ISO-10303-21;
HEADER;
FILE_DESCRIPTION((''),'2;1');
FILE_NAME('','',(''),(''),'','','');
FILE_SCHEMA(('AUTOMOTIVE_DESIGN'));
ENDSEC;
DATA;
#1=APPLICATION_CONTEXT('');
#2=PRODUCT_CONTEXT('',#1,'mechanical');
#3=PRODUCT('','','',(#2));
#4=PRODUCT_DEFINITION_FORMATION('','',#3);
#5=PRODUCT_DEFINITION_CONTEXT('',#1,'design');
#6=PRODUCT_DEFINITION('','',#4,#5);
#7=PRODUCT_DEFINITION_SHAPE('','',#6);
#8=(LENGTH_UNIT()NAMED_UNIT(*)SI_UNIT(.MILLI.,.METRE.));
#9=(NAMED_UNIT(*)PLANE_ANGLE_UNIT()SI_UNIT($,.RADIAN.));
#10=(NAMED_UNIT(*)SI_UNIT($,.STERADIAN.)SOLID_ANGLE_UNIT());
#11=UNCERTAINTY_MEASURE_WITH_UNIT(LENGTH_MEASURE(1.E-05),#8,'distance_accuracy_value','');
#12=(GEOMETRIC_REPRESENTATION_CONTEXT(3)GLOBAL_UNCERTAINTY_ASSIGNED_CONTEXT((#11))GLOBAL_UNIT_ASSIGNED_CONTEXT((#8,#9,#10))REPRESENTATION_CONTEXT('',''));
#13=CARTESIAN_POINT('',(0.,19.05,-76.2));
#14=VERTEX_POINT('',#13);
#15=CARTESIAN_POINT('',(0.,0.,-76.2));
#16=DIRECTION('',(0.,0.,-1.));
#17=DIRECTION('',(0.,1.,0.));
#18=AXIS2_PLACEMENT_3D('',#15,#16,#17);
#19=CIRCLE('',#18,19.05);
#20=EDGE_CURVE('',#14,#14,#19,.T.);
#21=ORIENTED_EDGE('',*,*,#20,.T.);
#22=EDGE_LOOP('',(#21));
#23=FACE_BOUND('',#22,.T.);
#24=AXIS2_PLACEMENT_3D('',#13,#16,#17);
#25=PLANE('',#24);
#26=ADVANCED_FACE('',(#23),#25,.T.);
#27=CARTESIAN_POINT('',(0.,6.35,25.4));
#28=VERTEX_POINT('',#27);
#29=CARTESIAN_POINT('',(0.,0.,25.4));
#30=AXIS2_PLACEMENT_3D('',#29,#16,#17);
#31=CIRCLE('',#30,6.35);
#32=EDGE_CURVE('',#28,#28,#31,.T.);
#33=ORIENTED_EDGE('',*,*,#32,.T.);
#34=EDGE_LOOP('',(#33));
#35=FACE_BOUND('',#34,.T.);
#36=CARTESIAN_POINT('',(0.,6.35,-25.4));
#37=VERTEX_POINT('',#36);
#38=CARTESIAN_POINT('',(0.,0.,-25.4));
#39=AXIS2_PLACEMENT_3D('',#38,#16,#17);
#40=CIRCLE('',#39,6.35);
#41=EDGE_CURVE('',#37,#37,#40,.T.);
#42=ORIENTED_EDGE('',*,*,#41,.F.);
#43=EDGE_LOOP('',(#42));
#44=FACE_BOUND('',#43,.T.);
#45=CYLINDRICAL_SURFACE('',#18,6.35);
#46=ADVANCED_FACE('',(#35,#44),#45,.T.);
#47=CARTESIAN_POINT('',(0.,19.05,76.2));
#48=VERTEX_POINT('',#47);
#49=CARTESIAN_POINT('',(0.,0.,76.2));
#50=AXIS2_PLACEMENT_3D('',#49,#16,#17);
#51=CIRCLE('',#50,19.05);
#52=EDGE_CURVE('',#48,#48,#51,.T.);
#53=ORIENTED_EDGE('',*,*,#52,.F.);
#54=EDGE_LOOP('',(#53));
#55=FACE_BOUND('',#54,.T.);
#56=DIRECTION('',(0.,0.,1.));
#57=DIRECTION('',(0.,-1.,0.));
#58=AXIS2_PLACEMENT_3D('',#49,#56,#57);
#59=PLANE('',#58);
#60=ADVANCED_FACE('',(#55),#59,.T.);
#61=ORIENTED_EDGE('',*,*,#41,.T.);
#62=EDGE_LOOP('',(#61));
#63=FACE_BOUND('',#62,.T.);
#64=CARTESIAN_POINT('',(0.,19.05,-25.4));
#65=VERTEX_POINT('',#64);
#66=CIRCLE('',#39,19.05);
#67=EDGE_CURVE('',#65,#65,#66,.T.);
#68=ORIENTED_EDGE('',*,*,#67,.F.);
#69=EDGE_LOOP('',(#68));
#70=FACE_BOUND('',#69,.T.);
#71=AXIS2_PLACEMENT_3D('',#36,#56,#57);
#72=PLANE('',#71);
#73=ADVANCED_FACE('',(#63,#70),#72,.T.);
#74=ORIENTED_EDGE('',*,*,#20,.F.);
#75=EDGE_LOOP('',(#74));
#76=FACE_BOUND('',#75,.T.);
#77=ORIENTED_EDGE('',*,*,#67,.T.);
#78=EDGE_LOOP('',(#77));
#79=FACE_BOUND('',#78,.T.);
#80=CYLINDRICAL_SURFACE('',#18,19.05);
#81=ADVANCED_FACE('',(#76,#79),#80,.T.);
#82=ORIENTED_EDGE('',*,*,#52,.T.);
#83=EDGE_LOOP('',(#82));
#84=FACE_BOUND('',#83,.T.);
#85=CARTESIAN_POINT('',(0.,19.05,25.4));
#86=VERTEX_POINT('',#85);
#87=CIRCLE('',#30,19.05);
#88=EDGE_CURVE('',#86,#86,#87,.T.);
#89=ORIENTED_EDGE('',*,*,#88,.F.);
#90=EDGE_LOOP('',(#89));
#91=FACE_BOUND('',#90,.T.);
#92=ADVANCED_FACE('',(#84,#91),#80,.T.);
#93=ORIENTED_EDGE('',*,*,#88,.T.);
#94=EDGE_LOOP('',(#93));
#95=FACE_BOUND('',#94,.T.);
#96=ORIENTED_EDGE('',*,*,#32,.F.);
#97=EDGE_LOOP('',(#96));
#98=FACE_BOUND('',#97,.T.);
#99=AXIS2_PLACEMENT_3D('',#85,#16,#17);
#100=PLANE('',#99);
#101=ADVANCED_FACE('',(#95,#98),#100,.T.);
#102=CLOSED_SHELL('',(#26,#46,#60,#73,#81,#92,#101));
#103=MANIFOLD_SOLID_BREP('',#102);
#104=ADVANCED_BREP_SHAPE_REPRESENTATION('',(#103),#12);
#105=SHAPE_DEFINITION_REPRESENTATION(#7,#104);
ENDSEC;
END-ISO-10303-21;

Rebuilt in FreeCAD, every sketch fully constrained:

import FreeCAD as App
import Part
import Sketcher
Q = App.Units.Quantity


def add_polygon(sketch, points):
    """Adds a closed chain of lines whose ends are joined by coincident constraints."""
    first, n = sketch.GeometryCount, len(points)
    for a, b in zip(points, points[1:] + points[:1]):
        sketch.addGeometry(Part.LineSegment(App.Vector(*a, 0), App.Vector(*b, 0)), False)
    for i in range(n):
        sketch.addConstraint(Sketcher.Constraint("Coincident", first + i, 2, first + (i + 1) % n, 1))

doc = App.newDocument("Part")
body = doc.addObject("PartDesign::Body", "Body")

sketch1 = body.newObject("Sketcher::SketchObject", "Sketch")
sketch1.AttachmentSupport = (doc.getObject("YZ_Plane"), [""])
sketch1.MapMode = "FlatFace"
add_polygon(sketch1, [(0, 76), (0, -76), (19, -76), (19, -25), (6, -25), (6, 25), (19, 25), (19, 76)])
sketch1.addConstraint(Sketcher.Constraint("Vertical", 0))
sketch1.addConstraint(Sketcher.Constraint("Horizontal", 1))
sketch1.addConstraint(Sketcher.Constraint("Vertical", 2))
sketch1.addConstraint(Sketcher.Constraint("Horizontal", 3))
sketch1.addConstraint(Sketcher.Constraint("Vertical", 4))
sketch1.addConstraint(Sketcher.Constraint("Horizontal", 5))
sketch1.addConstraint(Sketcher.Constraint("Vertical", 6))
sketch1.addConstraint(Sketcher.Constraint("Horizontal", 7))
sketch1.addConstraint(Sketcher.Constraint("Symmetric", 0, 2, 7, 2, -1, 1))
sketch1.addConstraint(Sketcher.Constraint("Symmetric", 2, 2, 5, 2, -1))
sketch1.addConstraint(Sketcher.Constraint("Equal", 2, 4))
sketch1.addConstraint(Sketcher.Constraint("DistanceY", 0, 2, 0, 1, Q("6 in")))
sketch1.addConstraint(Sketcher.Constraint("DistanceX", 3, 2, 3, 1, Q("0.5 in")))
sketch1.addConstraint(Sketcher.Constraint("DistanceX", 1, 1, 1, 2, Q("0.75 in")))
revolution = body.newObject("PartDesign::Revolution", "Revolution")
revolution.Profile = sketch1
revolution.ReferenceAxis = (sketch1, ["V_Axis"])
revolution.Angle = 360

doc.recompute()
